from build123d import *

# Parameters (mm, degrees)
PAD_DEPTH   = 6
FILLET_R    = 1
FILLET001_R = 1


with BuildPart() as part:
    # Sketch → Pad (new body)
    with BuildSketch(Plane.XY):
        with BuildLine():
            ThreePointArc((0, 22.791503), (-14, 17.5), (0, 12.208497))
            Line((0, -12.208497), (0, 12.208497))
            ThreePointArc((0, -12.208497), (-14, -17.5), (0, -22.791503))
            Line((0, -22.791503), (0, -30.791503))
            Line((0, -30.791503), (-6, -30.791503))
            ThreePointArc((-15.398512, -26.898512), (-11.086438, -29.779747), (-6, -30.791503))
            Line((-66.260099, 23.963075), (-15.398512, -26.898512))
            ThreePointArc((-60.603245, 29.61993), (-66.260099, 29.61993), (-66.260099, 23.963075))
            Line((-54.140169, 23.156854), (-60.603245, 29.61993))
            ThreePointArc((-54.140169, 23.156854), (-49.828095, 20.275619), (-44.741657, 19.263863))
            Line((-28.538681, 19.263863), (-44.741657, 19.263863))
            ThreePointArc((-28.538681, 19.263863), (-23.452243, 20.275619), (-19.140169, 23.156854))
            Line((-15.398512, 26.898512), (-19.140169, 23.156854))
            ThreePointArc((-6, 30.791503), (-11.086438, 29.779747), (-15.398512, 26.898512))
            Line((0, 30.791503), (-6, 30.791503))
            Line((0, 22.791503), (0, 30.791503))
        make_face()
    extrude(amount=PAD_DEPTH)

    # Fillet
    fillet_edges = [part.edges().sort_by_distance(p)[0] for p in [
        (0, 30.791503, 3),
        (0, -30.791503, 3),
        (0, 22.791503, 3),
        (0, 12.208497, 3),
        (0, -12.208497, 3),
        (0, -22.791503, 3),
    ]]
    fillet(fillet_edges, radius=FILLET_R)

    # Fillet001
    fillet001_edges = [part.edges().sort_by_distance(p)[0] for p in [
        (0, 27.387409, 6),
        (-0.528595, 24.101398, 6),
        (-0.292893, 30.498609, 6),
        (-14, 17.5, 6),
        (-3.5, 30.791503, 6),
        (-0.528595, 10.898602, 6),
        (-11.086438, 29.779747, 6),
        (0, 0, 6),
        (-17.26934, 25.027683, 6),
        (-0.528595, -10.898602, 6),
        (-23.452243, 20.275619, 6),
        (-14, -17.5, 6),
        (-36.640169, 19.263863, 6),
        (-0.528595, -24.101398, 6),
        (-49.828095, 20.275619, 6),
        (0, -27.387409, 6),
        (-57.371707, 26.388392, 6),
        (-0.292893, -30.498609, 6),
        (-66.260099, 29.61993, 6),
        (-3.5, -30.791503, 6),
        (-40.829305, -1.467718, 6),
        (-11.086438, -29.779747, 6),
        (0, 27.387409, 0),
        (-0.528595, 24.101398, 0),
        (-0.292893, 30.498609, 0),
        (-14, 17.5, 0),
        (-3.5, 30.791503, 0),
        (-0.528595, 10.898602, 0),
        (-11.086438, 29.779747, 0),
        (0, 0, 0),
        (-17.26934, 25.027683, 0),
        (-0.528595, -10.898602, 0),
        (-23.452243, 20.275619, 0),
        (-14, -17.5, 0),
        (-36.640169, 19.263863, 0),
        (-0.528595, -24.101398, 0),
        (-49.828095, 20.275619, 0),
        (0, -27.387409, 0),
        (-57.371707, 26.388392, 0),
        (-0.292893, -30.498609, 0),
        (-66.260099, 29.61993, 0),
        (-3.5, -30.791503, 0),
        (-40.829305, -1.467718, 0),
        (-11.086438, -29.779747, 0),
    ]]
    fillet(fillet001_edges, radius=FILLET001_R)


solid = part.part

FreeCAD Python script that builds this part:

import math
import FreeCAD as App
import Part
import Sketcher
from FreeCAD import Vector
Q = App.Units.Quantity


def edges_at(feature, points):
    """Names of the edges that pass closest to the given points."""
    edges = feature.Shape.Edges
    near = lambda p: min(range(len(edges)), key=lambda i: edges[i].distToShape(Part.Vertex(*p))[0])
    return sorted({f"Edge{near(p) + 1}" for p in points})

doc = App.newDocument("Part")
body = doc.addObject("PartDesign::Body", "Body")

# Sketch on XY plane
sketch1 = body.newObject("Sketcher::SketchObject", "Sketch")
sketch1.AttachmentSupport = (doc.getObject("XY_Plane"), [""])
sketch1.MapMode = "FlatFace"
sketch1.addGeometry(Part.ArcOfCircle(Part.Circle(Vector(-6, 17.5, 0), Vector(0, 0, 1), 8), math.radians(41.409625), math.radians(318.590375)), False)
sketch1.addGeometry(Part.LineSegment(Vector(0, 22.791503, 0), Vector(0, 30.791503, 0)), False)
sketch1.addGeometry(Part.LineSegment(Vector(0, 30.791503, 0), Vector(-6, 30.791503, 0)), False)
sketch1.addGeometry(Part.ArcOfCircle(Part.Circle(Vector(-5.999997, 17.499993, 0), Vector(0, 0, 1), 13.29151), math.radians(90.000012), math.radians(134.999986)), False)
sketch1.addGeometry(Part.LineSegment(Vector(-15.398512, 26.898512, 0), Vector(-19.140169, 23.156854, 0)), False)
sketch1.addGeometry(Part.ArcOfCircle(Part.Circle(Vector(-28.538684, 32.555373, 0), Vector(0, 0, 1), 13.29151), math.radians(-89.999988), math.radians(-45.000014)), False)
sketch1.addGeometry(Part.LineSegment(Vector(-28.538681, 19.263863, 0), Vector(-44.741657, 19.263863, 0)), False)
sketch1.addGeometry(Part.ArcOfCircle(Part.Circle(Vector(-44.741654, 32.555373, 0), Vector(0, 0, 1), 13.29151), math.radians(-134.999986), math.radians(-90.000012)), False)
sketch1.addGeometry(Part.LineSegment(Vector(-54.140169, 23.156854, 0), Vector(-60.603245, 29.61993, 0)), False)
sketch1.addGeometry(Part.ArcOfCircle(Part.Circle(Vector(-63.431672, 26.791502, 0), Vector(0, 0, 1), 4), math.radians(45.000005), math.radians(225.000005)), False)
sketch1.addGeometry(Part.LineSegment(Vector(-66.260099, 23.963075, 0), Vector(-15.398512, -26.898512, 0)), False)
sketch1.addGeometry(Part.ArcOfCircle(Part.Circle(Vector(-5.999997, -17.499993, 0), Vector(0, 0, 1), 13.29151), math.radians(-134.999986), math.radians(-90.000012)), False)
sketch1.addGeometry(Part.LineSegment(Vector(-6, -30.791503, 0), Vector(0, -30.791503, 0)), False)
sketch1.addGeometry(Part.LineSegment(Vector(0, -30.791503, 0), Vector(0, -22.791503, 0)), False)
sketch1.addGeometry(Part.ArcOfCircle(Part.Circle(Vector(-6, -17.5, 0), Vector(0, 0, 1), 8), math.radians(41.409625), math.radians(318.590375)), False)
sketch1.addGeometry(Part.LineSegment(Vector(0, -12.208497, 0), Vector(0, 12.208497, 0)), False)
sketch1.addConstraint(Sketcher.Constraint("Coincident", 0, 1, 1, 1))
sketch1.addConstraint(Sketcher.Constraint("Coincident", 1, 2, 2, 1))
sketch1.addConstraint(Sketcher.Constraint("Tangent", 2, 2, 3, 1))
sketch1.addConstraint(Sketcher.Constraint("Tangent", 3, 2, 4, 1))
sketch1.addConstraint(Sketcher.Constraint("Tangent", 4, 2, 5, 2))
sketch1.addConstraint(Sketcher.Constraint("Tangent", 5, 1, 6, 1))
sketch1.addConstraint(Sketcher.Constraint("Tangent", 6, 2, 7, 2))
sketch1.addConstraint(Sketcher.Constraint("Tangent", 7, 1, 8, 1))
sketch1.addConstraint(Sketcher.Constraint("Tangent", 8, 2, 9, 1))
sketch1.addConstraint(Sketcher.Constraint("Tangent", 9, 2, 10, 1))
sketch1.addConstraint(Sketcher.Constraint("Tangent", 10, 2, 11, 1))
sketch1.addConstraint(Sketcher.Constraint("Tangent", 11, 2, 12, 1))
sketch1.addConstraint(Sketcher.Constraint("Coincident", 12, 2, 13, 1))
sketch1.addConstraint(Sketcher.Constraint("Coincident", 13, 2, 14, 2))
sketch1.addConstraint(Sketcher.Constraint("Coincident", 14, 1, 15, 1))
sketch1.addConstraint(Sketcher.Constraint("Coincident", 15, 2, 0, 2))
sketch1.addConstraint(Sketcher.Constraint("Vertical", 1))
sketch1.addConstraint(Sketcher.Constraint("Horizontal", 2))
sketch1.addConstraint(Sketcher.Constraint("Horizontal", 6))
sketch1.addConstraint(Sketcher.Constraint("Horizontal", 12))
sketch1.addConstraint(Sketcher.Constraint("Vertical", 13))
sketch1.addConstraint(Sketcher.Constraint("Vertical", 15))
sketch1.addConstraint(Sketcher.Constraint("Coincident", 3, 3, 0, 3))
sketch1.addConstraint(Sketcher.Constraint("Coincident", 14, 3, 11, 3))
sketch1.addConstraint(Sketcher.Constraint("Equal", 3, 5))
sketch1.addConstraint(Sketcher.Constraint("Equal", 5, 7))
sketch1.addConstraint(Sketcher.Constraint("Equal", 7, 11))
sketch1.addConstraint(Sketcher.Constraint("Equal", 0, 14))
sketch1.addConstraint(Sketcher.Constraint("Symmetric", 1, 2, 12, 2, -1, 1))
sketch1.addConstraint(Sketcher.Constraint("Symmetric", 14, 1, 15, 2, -1, 1))
sketch1.addConstraint(Sketcher.Constraint("PointOnObject", 0, 1, -2))
sketch1.addConstraint(Sketcher.Constraint("Perpendicular", 4, 8))
sketch1.addConstraint(Sketcher.Constraint("Parallel", 8, 10))
sketch1.addConstraint(Sketcher.Constraint("Horizontal", 4, 2, 7, 1))
sketch1.addConstraint(Sketcher.Constraint("Radius", 0, Q("8 mm")))
sketch1.addConstraint(Sketcher.Constraint("Radius", 9, Q("4 mm")))
sketch1.addConstraint(Sketcher.Constraint("DistanceX", 2, 2, 2, 1, Q("6 mm")))
sketch1.addConstraint(Sketcher.Constraint("DistanceY", 1, 1, 1, 2, Q("8 mm")))
sketch1.addConstraint(Sketcher.Constraint("DistanceY", 14, 3, 0, 3, Q("35 mm")))
sketch1.addConstraint(Sketcher.Constraint("DistanceX", 9, 2, -1, 1, Q("66.260099 mm")))
sketch1.addConstraint(Sketcher.Constraint("DistanceY", 9, 2, 7, 3, Q("8.592298 mm")))
pad1 = body.newObject("PartDesign::Pad", "Pad")
pad1.Profile = sketch1
pad1.Length = 6
doc.recompute()

fillet = body.newObject("PartDesign::Fillet", "Fillet")
fillet.Base = (pad1, edges_at(pad1, [
    (0, 30.792, 3),
    (0, -30.792, 3),
    (0, 22.792, 3),
    (0, 12.208, 3),
    (0, -12.208, 3),
    (0, -22.792, 3),
]))
fillet.Radius = 1
doc.recompute()

fillet2 = body.newObject("PartDesign::Fillet", "Fillet001")
fillet2.Base = (fillet, edges_at(fillet, [
    (0, 27.387, 6),
    (-0.529, 24.101, 6),
    (-0.293, 30.499, 6),
    (-14, 17.5, 6),
    (-3.5, 30.792, 6),
    (-0.529, 10.899, 6),
    (-11.086, 29.78, 6),
    (0, 0, 6),
    (-17.269, 25.028, 6),
    (-0.529, -10.899, 6),
    (-23.452, 20.276, 6),
    (-14, -17.5, 6),
    (-36.64, 19.264, 6),
    (-0.529, -24.101, 6),
    (-49.828, 20.276, 6),
    (0, -27.387, 6),
    (-57.372, 26.388, 6),
    (-0.293, -30.499, 6),
    (-66.26, 29.62, 6),
    (-3.5, -30.792, 6),
    (-40.829, -1.468, 6),
    (-11.086, -29.78, 6),
    (0, 27.387, 0),
    (-0.529, 24.101, 0),
    (-0.293, 30.499, 0),
    (-14, 17.5, 0),
    (-3.5, 30.792, 0),
    (-0.529, 10.899, 0),
    (-11.086, 29.78, 0),
    (0, 0, 0),
    (-17.269, 25.028, 0),
    (-0.529, -10.899, 0),
    (-23.452, 20.276, 0),
    (-14, -17.5, 0),
    (-36.64, 19.264, 0),
    (-0.529, -24.101, 0),
    (-49.828, 20.276, 0),
    (0, -27.387, 0),
    (-57.372, 26.388, 0),
    (-0.293, -30.499, 0),
    (-66.26, 29.62, 0),
    (-3.5, -30.792, 0),
    (-40.829, -1.468, 0),
    (-11.086, -29.78, 0),
]))
fillet2.Radius = 1

doc.recompute()
